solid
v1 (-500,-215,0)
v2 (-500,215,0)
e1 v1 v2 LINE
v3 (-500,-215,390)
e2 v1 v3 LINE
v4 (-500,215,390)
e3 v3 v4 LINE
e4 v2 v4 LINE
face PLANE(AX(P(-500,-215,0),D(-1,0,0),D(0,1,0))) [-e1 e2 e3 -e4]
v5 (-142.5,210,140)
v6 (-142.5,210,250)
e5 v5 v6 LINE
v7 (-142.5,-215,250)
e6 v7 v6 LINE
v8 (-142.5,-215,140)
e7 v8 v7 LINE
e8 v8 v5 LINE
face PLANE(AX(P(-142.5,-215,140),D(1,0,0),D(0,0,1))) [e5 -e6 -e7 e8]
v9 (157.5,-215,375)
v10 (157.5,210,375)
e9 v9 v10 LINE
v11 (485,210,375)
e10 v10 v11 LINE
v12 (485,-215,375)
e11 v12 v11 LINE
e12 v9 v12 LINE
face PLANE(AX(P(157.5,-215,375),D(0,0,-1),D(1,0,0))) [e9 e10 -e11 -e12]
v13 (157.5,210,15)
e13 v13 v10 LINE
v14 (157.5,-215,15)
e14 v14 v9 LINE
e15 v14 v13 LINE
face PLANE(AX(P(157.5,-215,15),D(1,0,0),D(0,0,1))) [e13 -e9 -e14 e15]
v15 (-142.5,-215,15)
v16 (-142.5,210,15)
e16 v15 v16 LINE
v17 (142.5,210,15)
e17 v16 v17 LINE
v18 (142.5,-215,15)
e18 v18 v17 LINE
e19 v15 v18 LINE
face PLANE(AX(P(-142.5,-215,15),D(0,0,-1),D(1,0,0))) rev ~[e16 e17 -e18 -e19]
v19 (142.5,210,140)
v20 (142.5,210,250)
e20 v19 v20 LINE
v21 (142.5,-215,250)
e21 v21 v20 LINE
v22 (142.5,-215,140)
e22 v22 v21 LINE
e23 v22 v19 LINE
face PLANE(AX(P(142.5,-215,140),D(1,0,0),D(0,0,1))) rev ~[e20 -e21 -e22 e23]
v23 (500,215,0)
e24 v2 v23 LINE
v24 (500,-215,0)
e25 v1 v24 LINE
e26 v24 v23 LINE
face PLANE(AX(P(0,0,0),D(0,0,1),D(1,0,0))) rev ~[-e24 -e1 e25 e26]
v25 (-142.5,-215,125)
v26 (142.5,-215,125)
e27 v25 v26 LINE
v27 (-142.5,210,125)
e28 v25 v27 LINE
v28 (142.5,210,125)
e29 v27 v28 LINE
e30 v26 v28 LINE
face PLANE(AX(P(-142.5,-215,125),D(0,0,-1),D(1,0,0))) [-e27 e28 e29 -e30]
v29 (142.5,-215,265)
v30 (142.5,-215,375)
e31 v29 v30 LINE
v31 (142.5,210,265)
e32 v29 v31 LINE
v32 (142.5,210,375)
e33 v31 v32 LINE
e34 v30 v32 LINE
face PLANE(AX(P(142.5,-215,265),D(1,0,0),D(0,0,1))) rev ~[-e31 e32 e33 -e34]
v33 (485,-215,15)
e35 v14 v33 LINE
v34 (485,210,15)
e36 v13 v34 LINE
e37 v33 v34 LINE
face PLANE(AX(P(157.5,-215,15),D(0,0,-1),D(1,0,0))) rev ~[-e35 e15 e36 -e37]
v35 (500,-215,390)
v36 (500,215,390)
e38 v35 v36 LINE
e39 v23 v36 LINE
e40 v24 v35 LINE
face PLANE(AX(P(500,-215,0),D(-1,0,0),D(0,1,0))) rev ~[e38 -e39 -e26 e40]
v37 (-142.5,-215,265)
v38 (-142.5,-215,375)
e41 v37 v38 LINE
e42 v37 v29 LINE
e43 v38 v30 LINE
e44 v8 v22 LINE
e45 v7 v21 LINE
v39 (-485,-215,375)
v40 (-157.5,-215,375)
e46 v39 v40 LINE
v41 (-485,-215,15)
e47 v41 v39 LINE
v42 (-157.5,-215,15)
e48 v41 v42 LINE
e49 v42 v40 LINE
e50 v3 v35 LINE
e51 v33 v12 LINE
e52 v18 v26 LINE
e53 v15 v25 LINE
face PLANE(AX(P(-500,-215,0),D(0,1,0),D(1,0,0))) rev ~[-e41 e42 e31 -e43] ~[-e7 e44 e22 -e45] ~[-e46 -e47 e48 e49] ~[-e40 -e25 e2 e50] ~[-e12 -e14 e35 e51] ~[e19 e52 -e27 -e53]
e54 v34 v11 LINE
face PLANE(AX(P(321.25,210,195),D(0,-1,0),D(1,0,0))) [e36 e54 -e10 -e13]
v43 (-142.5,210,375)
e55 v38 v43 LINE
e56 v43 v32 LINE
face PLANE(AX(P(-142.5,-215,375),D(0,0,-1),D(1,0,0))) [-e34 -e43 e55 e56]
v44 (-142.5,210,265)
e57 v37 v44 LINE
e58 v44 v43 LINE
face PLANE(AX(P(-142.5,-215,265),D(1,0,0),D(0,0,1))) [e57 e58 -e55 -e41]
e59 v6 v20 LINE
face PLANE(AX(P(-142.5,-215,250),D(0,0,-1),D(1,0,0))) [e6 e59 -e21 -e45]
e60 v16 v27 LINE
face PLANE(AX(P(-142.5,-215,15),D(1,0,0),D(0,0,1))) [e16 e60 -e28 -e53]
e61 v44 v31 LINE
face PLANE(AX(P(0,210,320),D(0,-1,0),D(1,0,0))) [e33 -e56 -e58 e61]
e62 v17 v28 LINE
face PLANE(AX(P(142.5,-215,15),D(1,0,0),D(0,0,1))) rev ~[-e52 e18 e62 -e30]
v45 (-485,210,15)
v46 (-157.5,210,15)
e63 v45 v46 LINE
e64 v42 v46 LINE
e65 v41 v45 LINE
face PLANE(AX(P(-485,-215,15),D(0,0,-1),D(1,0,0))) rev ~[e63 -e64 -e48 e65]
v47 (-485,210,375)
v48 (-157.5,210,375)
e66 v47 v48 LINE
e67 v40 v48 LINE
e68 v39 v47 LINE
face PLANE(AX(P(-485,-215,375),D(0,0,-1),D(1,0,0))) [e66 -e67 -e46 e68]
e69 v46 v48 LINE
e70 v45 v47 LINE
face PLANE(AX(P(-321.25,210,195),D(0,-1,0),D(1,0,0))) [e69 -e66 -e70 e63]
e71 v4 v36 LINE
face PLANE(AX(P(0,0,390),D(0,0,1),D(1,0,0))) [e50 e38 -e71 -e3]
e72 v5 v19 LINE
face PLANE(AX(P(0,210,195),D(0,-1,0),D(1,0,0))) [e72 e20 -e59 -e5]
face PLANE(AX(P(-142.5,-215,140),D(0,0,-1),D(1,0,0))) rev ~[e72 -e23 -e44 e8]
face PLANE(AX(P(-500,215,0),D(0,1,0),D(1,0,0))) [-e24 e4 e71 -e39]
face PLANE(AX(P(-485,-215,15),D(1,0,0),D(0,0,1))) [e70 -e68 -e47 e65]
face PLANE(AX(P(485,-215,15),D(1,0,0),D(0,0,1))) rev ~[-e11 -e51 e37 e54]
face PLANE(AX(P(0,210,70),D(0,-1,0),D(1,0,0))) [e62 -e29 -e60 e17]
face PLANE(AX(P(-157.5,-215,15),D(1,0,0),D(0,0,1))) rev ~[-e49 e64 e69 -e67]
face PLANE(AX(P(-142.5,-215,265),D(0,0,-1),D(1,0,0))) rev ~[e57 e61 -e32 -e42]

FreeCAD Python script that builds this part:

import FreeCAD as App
import Part
import Sketcher
from FreeCAD import Vector

doc = App.newDocument("Part")
body = doc.addObject("PartDesign::Body", "Body")

# Sketch on XY plane
sketch1 = body.newObject("Sketcher::SketchObject", "Sketch")
sketch1.AttachmentSupport = (doc.getObject("XY_Plane"), [""])
sketch1.MapMode = "FlatFace"
sketch1.addGeometry([
    Part.LineSegment(Vector(-500, 215, 0), Vector(-500, -215, 0)),
    Part.LineSegment(Vector(-500, -215, 0), Vector(500, -215, 0)),
    Part.LineSegment(Vector(500, -215, 0), Vector(500, 215, 0)),
    Part.LineSegment(Vector(500, 215, 0), Vector(-500, 215, 0)),
], False)
sketch1.addConstraint([
    Sketcher.Constraint("Coincident", 0, 2, 1, 1),
    Sketcher.Constraint("Coincident", 1, 2, 2, 1),
    Sketcher.Constraint("Coincident", 2, 2, 3, 1),
    Sketcher.Constraint("Coincident", 3, 2, 0, 1),
    Sketcher.Constraint("Vertical", 0),
    Sketcher.Constraint("Horizontal", 1),
    Sketcher.Constraint("Vertical", 2),
    Sketcher.Constraint("Horizontal", 3),
    Sketcher.Constraint("Symmetric", 0, 2, 2, 2, -1, 1),
    Sketcher.Constraint("DistanceX", 1, 1, 1, 2, 1000.0),
    Sketcher.Constraint("DistanceY", 0, 2, 0, 1, 430.0),
])
pad1 = body.newObject("PartDesign::Pad", "Pad")
pad1.Profile = sketch1
pad1.Length = 390

# Sketch on XZ plane
sketch2 = body.newObject("Sketcher::SketchObject", "Sketch001")
sketch2.AttachmentSupport = (doc.getObject("XZ_Plane"), [""])
sketch2.MapMode = "FlatFace"
sketch2.AttachmentOffset = App.Placement(Vector(0, 0, 215), App.Rotation())
sketch2.addGeometry([
    Part.LineSegment(Vector(-142, 250, 0), Vector(-142, 140, 0)),  # 0
    Part.LineSegment(Vector(-142, 140, 0), Vector(142, 140, 0)),  # 1
    Part.LineSegment(Vector(142, 140, 0), Vector(142, 250, 0)),  # 2
    Part.LineSegment(Vector(142, 250, 0), Vector(-142, 250, 0)),  # 3
    Part.LineSegment(Vector(-142, 375, 0), Vector(-142, 265, 0)),  # 4
    Part.LineSegment(Vector(-142, 265, 0), Vector(142, 265, 0)),  # 5
    Part.LineSegment(Vector(142, 265, 0), Vector(142, 375, 0)),  # 6
    Part.LineSegment(Vector(142, 375, 0), Vector(-142, 375, 0)),  # 7
    Part.LineSegment(Vector(158, 375, 0), Vector(158, 15, 0)),  # 8
    Part.LineSegment(Vector(158, 15, 0), Vector(485, 15, 0)),  # 9
    Part.LineSegment(Vector(485, 15, 0), Vector(485, 375, 0)),  # 10
    Part.LineSegment(Vector(485, 375, 0), Vector(158, 375, 0)),  # 11
    Part.LineSegment(Vector(-485, 375, 0), Vector(-485, 15, 0)),  # 12
    Part.LineSegment(Vector(-485, 15, 0), Vector(-158, 15, 0)),  # 13
    Part.LineSegment(Vector(-158, 15, 0), Vector(-158, 375, 0)),  # 14
    Part.LineSegment(Vector(-158, 375, 0), Vector(-485, 375, 0)),  # 15
    Part.LineSegment(Vector(-142, 125, 0), Vector(-142, 15, 0)),  # 16
    Part.LineSegment(Vector(-142, 15, 0), Vector(142, 15, 0)),  # 17
    Part.LineSegment(Vector(142, 15, 0), Vector(142, 125, 0)),  # 18
    Part.LineSegment(Vector(142, 125, 0), Vector(-142, 125, 0)),  # 19
], False)
sketch2.addConstraint([
    Sketcher.Constraint("Coincident", 0, 2, 1, 1),
    Sketcher.Constraint("Coincident", 1, 2, 2, 1),
    Sketcher.Constraint("Coincident", 2, 2, 3, 1),
    Sketcher.Constraint("Coincident", 3, 2, 0, 1),
    Sketcher.Constraint("Coincident", 4, 2, 5, 1),
    Sketcher.Constraint("Coincident", 5, 2, 6, 1),
    Sketcher.Constraint("Coincident", 6, 2, 7, 1),
    Sketcher.Constraint("Coincident", 7, 2, 4, 1),
    Sketcher.Constraint("Coincident", 8, 2, 9, 1),
    Sketcher.Constraint("Coincident", 9, 2, 10, 1),
    Sketcher.Constraint("Coincident", 10, 2, 11, 1),
    Sketcher.Constraint("Coincident", 11, 2, 8, 1),
    Sketcher.Constraint("Coincident", 12, 2, 13, 1),
    Sketcher.Constraint("Coincident", 13, 2, 14, 1),
    Sketcher.Constraint("Coincident", 14, 2, 15, 1),
    Sketcher.Constraint("Coincident", 15, 2, 12, 1),
    Sketcher.Constraint("Coincident", 16, 2, 17, 1),
    Sketcher.Constraint("Coincident", 17, 2, 18, 1),
    Sketcher.Constraint("Coincident", 18, 2, 19, 1),
    Sketcher.Constraint("Coincident", 19, 2, 16, 1),
    Sketcher.Constraint("Vertical", 0),
    Sketcher.Constraint("Horizontal", 1),
    Sketcher.Constraint("Vertical", 2),
    Sketcher.Constraint("Horizontal", 3),
    Sketcher.Constraint("Vertical", 4),
    Sketcher.Constraint("Horizontal", 5),
    Sketcher.Constraint("Vertical", 6),
    Sketcher.Constraint("Horizontal", 7),
    Sketcher.Constraint("Vertical", 8),
    Sketcher.Constraint("Horizontal", 9),
    Sketcher.Constraint("Vertical", 10),
    Sketcher.Constraint("Horizontal", 11),
    Sketcher.Constraint("Vertical", 12),
    Sketcher.Constraint("Horizontal", 13),
    Sketcher.Constraint("Vertical", 14),
    Sketcher.Constraint("Horizontal", 15),
    Sketcher.Constraint("Vertical", 16),
    Sketcher.Constraint("Horizontal", 17),
    Sketcher.Constraint("Vertical", 18),
    Sketcher.Constraint("Horizontal", 19),
    Sketcher.Constraint("Symmetric", 9, 2, 12, 2, -2),
    Sketcher.Constraint("Symmetric", 11, 2, 14, 2, -2),
    Sketcher.Constraint("Horizontal", 7, 2, 10, 2),
    Sketcher.Constraint("Horizontal", 13, 2, 16, 2),
    Sketcher.Constraint("Vertical", 3, 2, 4, 2),
    Sketcher.Constraint("Vertical", 2, 2, 5, 2),
    Sketcher.Constraint("Vertical", 7, 2, 16, 2),
    Sketcher.Constraint("Vertical", 6, 2, 17, 2),
    Sketcher.Constraint("Equal", 2, 4),
    Sketcher.Constraint("Equal", 6, 16),
    Sketcher.Constraint("DistanceX", 1, 1, 1, 2, 285.0),
    Sketcher.Constraint("DistanceY", 0, 2, 0, 1, 110.0),
    Sketcher.Constraint("DistanceY", 8, 2, 8, 1, 360.0),
    Sketcher.Constraint("DistanceX", 9, 1, 9, 2, 327.5),
    Sketcher.Constraint("DistanceY", -1, 1, 0, 2, 140.0),
    Sketcher.Constraint("DistanceY", -1, 1, 4, 2, 265.0),
    Sketcher.Constraint("DistanceX", -1, 1, 9, 2, 485.0),
    Sketcher.Constraint("DistanceX", 1, 2, 8, 2, 15.0),
])
pocket1 = body.newObject("PartDesign::Pocket", "Pocket")
pocket1.Profile = sketch2
pocket1.Length = 425

doc.recompute()
